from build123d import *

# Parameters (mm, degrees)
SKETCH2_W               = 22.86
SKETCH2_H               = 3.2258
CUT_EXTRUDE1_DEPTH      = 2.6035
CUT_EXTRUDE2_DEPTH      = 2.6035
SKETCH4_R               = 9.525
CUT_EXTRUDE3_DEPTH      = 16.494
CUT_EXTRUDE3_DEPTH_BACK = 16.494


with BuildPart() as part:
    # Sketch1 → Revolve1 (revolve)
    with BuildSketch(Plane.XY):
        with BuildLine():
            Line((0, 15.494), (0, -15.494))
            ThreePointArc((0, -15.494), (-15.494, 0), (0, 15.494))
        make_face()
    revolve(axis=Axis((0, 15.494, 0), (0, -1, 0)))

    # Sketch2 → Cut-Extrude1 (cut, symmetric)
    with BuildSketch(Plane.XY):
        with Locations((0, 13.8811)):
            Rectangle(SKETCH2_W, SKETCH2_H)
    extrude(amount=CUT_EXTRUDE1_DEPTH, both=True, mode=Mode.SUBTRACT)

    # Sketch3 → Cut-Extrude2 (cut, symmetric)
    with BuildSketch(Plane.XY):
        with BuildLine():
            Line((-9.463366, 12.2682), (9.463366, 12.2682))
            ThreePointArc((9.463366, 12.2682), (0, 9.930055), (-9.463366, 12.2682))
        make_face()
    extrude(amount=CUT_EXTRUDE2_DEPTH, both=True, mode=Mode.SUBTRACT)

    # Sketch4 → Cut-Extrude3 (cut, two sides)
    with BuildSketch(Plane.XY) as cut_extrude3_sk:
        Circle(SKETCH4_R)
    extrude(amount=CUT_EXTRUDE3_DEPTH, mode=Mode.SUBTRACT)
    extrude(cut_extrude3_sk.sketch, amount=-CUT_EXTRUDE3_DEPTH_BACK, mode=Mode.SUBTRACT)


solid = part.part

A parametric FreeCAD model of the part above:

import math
import FreeCAD as App
import Part
import Sketcher
from FreeCAD import Vector
Q = App.Units.Quantity


def add_polygon(sketch, points):
    """Adds a closed chain of lines whose ends are joined by coincident constraints."""
    first, n = sketch.GeometryCount, len(points)
    for a, b in zip(points, points[1:] + points[:1]):
        sketch.addGeometry(Part.LineSegment(App.Vector(*a, 0), App.Vector(*b, 0)), False)
    for i in range(n):
        sketch.addConstraint(Sketcher.Constraint("Coincident", first + i, 2, first + (i + 1) % n, 1))

doc = App.newDocument("Part")
params = doc.addObject("Spreadsheet::Sheet", "Params")
for row, (alias, value) in enumerate([
    ("sketch1_radius", "0.61 in"),
    ("revolution_angle", "360 deg"),
    ("sketch2_width", "0.9 in"),
    ("sketch2_height", "0.127 in"),
    ("pocket1_length", "0.205 in"),
    ("sketch3_radius", "0.8 in"),
    ("pocket2_length", "0.205 in"),
    ("sketch4_diameter", "0.75 in"),
], start=1):
    params.set(f"A{row}", alias)
    params.set(f"B{row}", "=" + value)
    params.setAlias(f"B{row}", alias)

body = doc.addObject("PartDesign::Body", "Body")

# Sketch on XY plane
sketch1 = body.newObject("Sketcher::SketchObject", "Sketch")
sketch1.AttachmentSupport = (doc.getObject("XY_Plane"), [""])
sketch1.MapMode = "FlatFace"
sketch1.addGeometry([
    Part.LineSegment(Vector(0, -15, 0), Vector(0, 15, 0)),
    Part.ArcOfCircle(Part.Circle(Vector(0, 0, 0), Vector(0, 0, 1), 15), math.radians(90), math.radians(270)),
], False)
sketch1.addConstraint([
    Sketcher.Constraint("Coincident", 0, 1, 1, 2),
    Sketcher.Constraint("Coincident", 1, 1, 0, 2),
    Sketcher.Constraint("Vertical", 0),
    Sketcher.Constraint("Coincident", 1, 3, -1, 1),
    Sketcher.Constraint("PointOnObject", 0, 1, -2),
    Sketcher.Constraint("Radius", 1, Q("0.61 in")),
])
sketch1.setExpression("Constraints[5]", "Params.sketch1_radius")
revolution = body.newObject("PartDesign::Revolution", "Revolution")
revolution.Profile = sketch1
revolution.ReferenceAxis = (sketch1, ["V_Axis"])
revolution.setExpression("Angle", "Params.revolution_angle")

# Sketch on XY plane
sketch2 = body.newObject("Sketcher::SketchObject", "Sketch001")
sketch2.AttachmentSupport = (doc.getObject("XY_Plane"), [""])
sketch2.MapMode = "FlatFace"
add_polygon(sketch2, [(-11.4, 15.5), (-11.4, 12.3), (11.4, 12.3), (11.4, 15.5)])  # lines 0-3
sketch2.addConstraint([
    Sketcher.Constraint("Vertical", 0),
    Sketcher.Constraint("Horizontal", 1),
    Sketcher.Constraint("Vertical", 2),
    Sketcher.Constraint("Horizontal", 3),
    Sketcher.Constraint("DistanceX", 1, 1, 1, 2, Q("0.9 in")),
    Sketcher.Constraint("DistanceY", 0, 2, 0, 1, Q("0.127 in")),
    Sketcher.Constraint("DistanceX", 0, 2, -1, 1, Q("0.45 in")),
    Sketcher.Constraint("DistanceY", -1, 1, 2, 2, Q("0.61 in")),
])
sketch2.setExpression("Constraints[8]", "Params.sketch2_width")
sketch2.setExpression("Constraints[9]", "Params.sketch2_height")
pocket1 = body.newObject("PartDesign::Pocket", "Pocket")
pocket1.Profile = sketch2
pocket1.setExpression("Length", "Params.pocket1_length")
pocket1.Midplane = True

# Sketch on XY plane
sketch3 = body.newObject("Sketcher::SketchObject", "Sketch002")
sketch3.AttachmentSupport = (doc.getObject("XY_Plane"), [""])
sketch3.MapMode = "FlatFace"
sketch3.addGeometry([
    Part.LineSegment(Vector(9, 12, 0), Vector(-9, 12, 0)),
    Part.ArcOfCircle(Part.Circle(Vector(0, 30, 0), Vector(0, 0, 1), 20), math.radians(-118), math.radians(-62)),
], False)
sketch3.addConstraint([
    Sketcher.Constraint("Coincident", 0, 1, 1, 2),
    Sketcher.Constraint("Coincident", 1, 1, 0, 2),
    Sketcher.Constraint("Horizontal", 0),
    Sketcher.Constraint("PointOnObject", 1, 3, -2),
    Sketcher.Constraint("Radius", 1, Q("0.8 in")),
    Sketcher.Constraint("DistanceY", -1, 1, 0, 1, Q("0.483 in")),
    Sketcher.Constraint("DistanceX", 0, 2, 0, 1, Q("18.926732 mm")),
])
sketch3.setExpression("Constraints[4]", "Params.sketch3_radius")
pocket2 = body.newObject("PartDesign::Pocket", "Pocket001")
pocket2.Profile = sketch3
pocket2.setExpression("Length", "Params.pocket2_length")
pocket2.Midplane = True

# Sketch on XY plane
sketch4 = body.newObject("Sketcher::SketchObject", "Sketch003")
sketch4.AttachmentSupport = (doc.getObject("XY_Plane"), [""])
sketch4.MapMode = "FlatFace"
sketch4.addGeometry(Part.Circle(Vector(0, 0, 0), Vector(0, 0, 1), 10), False)
sketch4.addConstraint([
    Sketcher.Constraint("Coincident", 0, 3, -1, 1),
    Sketcher.Constraint("Diameter", 0, Q("0.75 in")),
])
sketch4.setExpression("Constraints[1]", "Params.sketch4_diameter")
pocket3 = body.newObject("PartDesign::Pocket", "Pocket002")
pocket3.Profile = sketch4
pocket3.Type = "ThroughAll"
pocket3.Midplane = True

doc.recompute()
